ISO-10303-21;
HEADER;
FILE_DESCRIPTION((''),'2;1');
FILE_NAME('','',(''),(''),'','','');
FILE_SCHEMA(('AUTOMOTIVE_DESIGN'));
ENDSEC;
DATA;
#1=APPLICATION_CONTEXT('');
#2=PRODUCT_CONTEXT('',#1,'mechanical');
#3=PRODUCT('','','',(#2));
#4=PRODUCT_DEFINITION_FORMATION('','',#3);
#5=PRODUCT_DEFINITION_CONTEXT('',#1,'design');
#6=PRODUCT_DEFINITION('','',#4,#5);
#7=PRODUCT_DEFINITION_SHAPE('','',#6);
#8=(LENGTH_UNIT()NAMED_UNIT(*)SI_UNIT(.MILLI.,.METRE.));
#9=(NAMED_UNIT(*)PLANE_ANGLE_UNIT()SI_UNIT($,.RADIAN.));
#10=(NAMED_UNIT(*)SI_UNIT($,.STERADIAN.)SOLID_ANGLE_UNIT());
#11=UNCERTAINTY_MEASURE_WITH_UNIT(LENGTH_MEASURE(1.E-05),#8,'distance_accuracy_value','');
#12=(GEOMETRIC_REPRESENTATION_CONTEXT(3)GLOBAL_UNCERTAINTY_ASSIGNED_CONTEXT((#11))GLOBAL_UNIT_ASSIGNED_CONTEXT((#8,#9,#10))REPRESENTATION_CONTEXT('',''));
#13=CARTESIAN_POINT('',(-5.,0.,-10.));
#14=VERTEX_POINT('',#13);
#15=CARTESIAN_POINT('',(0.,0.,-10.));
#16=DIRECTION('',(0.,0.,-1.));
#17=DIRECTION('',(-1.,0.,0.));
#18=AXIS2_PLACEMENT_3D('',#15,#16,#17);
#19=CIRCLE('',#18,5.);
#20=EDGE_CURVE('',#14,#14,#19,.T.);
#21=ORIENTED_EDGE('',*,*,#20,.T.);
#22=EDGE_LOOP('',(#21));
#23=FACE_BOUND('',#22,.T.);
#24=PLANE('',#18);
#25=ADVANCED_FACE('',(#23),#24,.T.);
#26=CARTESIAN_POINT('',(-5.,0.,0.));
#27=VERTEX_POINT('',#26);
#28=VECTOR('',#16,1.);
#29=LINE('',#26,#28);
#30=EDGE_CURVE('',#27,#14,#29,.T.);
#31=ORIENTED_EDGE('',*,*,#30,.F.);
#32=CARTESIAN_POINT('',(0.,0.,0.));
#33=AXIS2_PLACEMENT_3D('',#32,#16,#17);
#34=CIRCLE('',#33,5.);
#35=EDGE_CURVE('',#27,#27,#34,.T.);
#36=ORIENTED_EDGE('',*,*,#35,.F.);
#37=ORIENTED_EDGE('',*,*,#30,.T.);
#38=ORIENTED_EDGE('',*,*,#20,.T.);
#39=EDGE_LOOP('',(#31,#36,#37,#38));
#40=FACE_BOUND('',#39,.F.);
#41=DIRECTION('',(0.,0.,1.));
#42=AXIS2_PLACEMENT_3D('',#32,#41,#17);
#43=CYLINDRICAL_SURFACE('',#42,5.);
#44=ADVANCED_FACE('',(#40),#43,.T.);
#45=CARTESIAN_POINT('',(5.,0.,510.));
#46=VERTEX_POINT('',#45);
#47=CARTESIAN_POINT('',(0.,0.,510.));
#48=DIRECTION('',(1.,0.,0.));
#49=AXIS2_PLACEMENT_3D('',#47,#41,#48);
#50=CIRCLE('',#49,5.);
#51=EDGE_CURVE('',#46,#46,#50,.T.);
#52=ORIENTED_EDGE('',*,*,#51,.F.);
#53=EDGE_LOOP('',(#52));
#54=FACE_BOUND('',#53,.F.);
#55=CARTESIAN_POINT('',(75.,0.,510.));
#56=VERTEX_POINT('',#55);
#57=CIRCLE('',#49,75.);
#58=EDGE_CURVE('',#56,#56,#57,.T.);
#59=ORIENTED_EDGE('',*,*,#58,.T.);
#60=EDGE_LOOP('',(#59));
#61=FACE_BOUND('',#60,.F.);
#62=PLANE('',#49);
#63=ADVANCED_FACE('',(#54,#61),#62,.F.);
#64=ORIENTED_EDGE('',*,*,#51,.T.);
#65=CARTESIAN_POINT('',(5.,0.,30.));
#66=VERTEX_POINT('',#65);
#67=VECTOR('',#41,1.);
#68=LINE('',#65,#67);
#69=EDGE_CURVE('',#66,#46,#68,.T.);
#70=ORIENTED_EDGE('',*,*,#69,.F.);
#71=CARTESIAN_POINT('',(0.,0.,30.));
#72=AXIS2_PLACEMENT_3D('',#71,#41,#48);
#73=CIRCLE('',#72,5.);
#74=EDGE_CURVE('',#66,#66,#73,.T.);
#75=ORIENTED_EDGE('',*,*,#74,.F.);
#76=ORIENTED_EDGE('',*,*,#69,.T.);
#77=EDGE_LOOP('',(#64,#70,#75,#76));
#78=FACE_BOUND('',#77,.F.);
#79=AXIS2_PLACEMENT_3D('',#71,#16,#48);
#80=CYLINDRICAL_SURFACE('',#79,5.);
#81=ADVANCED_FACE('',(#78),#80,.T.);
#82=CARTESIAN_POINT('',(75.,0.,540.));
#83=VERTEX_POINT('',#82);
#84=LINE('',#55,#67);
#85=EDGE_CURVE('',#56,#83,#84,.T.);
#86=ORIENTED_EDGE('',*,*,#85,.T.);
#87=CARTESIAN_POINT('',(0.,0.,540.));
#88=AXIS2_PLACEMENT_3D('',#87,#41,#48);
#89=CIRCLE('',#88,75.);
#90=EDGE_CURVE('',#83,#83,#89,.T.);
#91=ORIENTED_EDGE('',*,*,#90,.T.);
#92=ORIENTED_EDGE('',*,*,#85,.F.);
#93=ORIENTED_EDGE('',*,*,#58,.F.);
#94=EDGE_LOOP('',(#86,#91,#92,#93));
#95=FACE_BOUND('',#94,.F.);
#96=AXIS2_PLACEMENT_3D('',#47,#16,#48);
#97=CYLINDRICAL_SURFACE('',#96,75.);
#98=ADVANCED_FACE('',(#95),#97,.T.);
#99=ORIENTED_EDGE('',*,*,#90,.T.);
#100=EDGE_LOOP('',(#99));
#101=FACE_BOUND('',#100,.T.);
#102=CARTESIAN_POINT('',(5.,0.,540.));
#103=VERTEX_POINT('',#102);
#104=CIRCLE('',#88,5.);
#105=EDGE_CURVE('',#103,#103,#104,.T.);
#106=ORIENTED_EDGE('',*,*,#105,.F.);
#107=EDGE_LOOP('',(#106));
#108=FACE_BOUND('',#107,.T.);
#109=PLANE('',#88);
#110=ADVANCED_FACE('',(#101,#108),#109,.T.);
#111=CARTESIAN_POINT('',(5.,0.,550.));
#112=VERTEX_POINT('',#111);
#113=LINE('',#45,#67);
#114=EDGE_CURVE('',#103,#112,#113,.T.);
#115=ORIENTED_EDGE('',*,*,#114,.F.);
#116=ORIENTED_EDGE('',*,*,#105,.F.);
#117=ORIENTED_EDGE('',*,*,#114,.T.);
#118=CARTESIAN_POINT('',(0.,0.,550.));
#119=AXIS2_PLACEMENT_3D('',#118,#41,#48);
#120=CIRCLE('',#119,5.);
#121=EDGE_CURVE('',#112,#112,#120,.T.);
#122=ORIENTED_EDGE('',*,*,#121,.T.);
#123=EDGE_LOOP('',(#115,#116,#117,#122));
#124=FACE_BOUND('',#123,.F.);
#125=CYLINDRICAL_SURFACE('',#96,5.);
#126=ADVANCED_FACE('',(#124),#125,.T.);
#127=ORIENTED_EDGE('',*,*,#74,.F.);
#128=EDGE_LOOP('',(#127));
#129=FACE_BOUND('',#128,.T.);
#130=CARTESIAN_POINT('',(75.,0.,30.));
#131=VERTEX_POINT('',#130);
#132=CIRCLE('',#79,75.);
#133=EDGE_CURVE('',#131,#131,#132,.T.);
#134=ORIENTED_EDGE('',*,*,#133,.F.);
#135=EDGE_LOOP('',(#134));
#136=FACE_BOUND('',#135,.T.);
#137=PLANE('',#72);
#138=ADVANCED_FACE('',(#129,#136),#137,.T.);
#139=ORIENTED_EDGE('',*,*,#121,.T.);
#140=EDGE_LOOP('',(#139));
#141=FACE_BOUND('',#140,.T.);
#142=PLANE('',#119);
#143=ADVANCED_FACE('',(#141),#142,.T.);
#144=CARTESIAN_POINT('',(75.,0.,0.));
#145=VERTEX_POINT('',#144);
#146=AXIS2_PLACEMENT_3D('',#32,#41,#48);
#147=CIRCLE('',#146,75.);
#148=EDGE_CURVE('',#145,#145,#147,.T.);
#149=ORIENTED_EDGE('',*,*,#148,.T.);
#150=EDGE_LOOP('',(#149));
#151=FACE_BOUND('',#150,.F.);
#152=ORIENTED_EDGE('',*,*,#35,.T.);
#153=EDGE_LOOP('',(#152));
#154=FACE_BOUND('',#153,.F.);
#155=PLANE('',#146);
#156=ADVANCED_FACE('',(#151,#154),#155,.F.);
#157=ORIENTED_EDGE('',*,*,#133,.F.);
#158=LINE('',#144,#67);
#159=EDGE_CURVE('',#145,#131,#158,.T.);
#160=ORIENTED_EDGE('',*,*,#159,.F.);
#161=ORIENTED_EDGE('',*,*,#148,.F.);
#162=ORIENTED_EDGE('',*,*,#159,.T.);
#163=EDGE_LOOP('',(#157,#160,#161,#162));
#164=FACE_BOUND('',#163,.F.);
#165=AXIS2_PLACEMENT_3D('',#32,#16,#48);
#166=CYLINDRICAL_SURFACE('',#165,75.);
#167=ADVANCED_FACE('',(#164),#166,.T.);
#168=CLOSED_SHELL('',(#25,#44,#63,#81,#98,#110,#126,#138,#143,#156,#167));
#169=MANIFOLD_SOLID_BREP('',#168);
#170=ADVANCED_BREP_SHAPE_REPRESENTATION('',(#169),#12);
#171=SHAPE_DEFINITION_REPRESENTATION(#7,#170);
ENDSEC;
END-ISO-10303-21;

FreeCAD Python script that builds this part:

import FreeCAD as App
import Part
import Sketcher
Q = App.Units.Quantity

doc = App.newDocument("Part")
body = doc.addObject("PartDesign::Body", "Body")
body.AllowCompound = True

sketch1 = body.newObject("Sketcher::SketchObject", "Sketch")
sketch1.AttachmentSupport = (doc.getObject("XY_Plane"), [""])
sketch1.MapMode = "FlatFace"
sketch1.addGeometry(Part.Circle(App.Vector(0, 0, 0), App.Vector(0, 0, 1), 75), False)
sketch1.addConstraint(Sketcher.Constraint("Coincident", 0, 3, -1, 1))
sketch1.addConstraint(Sketcher.Constraint("Diameter", 0, Q("150 mm")))
pad1 = body.newObject("PartDesign::Pad", "Pad")
pad1.Profile = sketch1
pad1.Length = 30

sketch2 = body.newObject("Sketcher::SketchObject", "Sketch001")
sketch2.AttachmentSupport = (doc.getObject("XY_Plane"), [""])
sketch2.MapMode = "FlatFace"
sketch2.AttachmentOffset = App.Placement(App.Vector(0, 0, 30), App.Rotation())
sketch2.addGeometry(Part.Circle(App.Vector(0, 0, 0), App.Vector(0, 0, 1), 5), False)
sketch2.addConstraint(Sketcher.Constraint("Coincident", 0, 3, -1, 1))
sketch2.addConstraint(Sketcher.Constraint("Diameter", 0, Q("10 mm")))
pad2 = body.newObject("PartDesign::Pad", "Pad001")
pad2.Profile = sketch2
pad2.Length = 480

sketch3 = body.newObject("Sketcher::SketchObject", "Sketch002")
sketch3.AttachmentSupport = (doc.getObject("XY_Plane"), [""])
sketch3.MapMode = "FlatFace"
sketch3.AttachmentOffset = App.Placement(App.Vector(0, 0, 510), App.Rotation())
sketch3.addGeometry(Part.Circle(App.Vector(0, 0, 0), App.Vector(0, 0, 1), 75), False)
sketch3.addGeometry(Part.Circle(App.Vector(0, 0, 0), App.Vector(0, 0, 1), 5), False)
sketch3.addConstraint(Sketcher.Constraint("Coincident", 0, 3, -1, 1))
sketch3.addConstraint(Sketcher.Constraint("Coincident", 1, 3, -1, 1))
sketch3.addConstraint(Sketcher.Constraint("Diameter", 0, Q("150 mm")))
sketch3.addConstraint(Sketcher.Constraint("Diameter", 1, Q("10 mm")))
pad3 = body.newObject("PartDesign::Pad", "Pad002")
pad3.Profile = sketch3
pad3.Length = 30

sketch4 = body.newObject("Sketcher::SketchObject", "Sketch003")
sketch4.AttachmentSupport = (doc.getObject("XY_Plane"), [""])
sketch4.MapMode = "FlatFace"
sketch4.addGeometry(Part.Circle(App.Vector(0, 0, 0), App.Vector(0, 0, 1), 5), False)
sketch4.addConstraint(Sketcher.Constraint("Coincident", 0, 3, -1, 1))
sketch4.addConstraint(Sketcher.Constraint("Diameter", 0, Q("10 mm")))
pad4 = body.newObject("PartDesign::Pad", "Pad003")
pad4.Profile = sketch4
pad4.Length = 10
pad4.Reversed = True

sketch5 = body.newObject("Sketcher::SketchObject", "Sketch004")
sketch5.AttachmentSupport = (doc.getObject("XY_Plane"), [""])
sketch5.MapMode = "FlatFace"
sketch5.AttachmentOffset = App.Placement(App.Vector(0, 0, 510), App.Rotation())
sketch5.addGeometry(Part.Circle(App.Vector(0, 0, 0), App.Vector(0, 0, 1), 5), False)
sketch5.addConstraint(Sketcher.Constraint("Coincident", 0, 3, -1, 1))
sketch5.addConstraint(Sketcher.Constraint("Diameter", 0, Q("10 mm")))
pad5 = body.newObject("PartDesign::Pad", "Pad004")
pad5.Profile = sketch5
pad5.Length = 40

doc.recompute()
